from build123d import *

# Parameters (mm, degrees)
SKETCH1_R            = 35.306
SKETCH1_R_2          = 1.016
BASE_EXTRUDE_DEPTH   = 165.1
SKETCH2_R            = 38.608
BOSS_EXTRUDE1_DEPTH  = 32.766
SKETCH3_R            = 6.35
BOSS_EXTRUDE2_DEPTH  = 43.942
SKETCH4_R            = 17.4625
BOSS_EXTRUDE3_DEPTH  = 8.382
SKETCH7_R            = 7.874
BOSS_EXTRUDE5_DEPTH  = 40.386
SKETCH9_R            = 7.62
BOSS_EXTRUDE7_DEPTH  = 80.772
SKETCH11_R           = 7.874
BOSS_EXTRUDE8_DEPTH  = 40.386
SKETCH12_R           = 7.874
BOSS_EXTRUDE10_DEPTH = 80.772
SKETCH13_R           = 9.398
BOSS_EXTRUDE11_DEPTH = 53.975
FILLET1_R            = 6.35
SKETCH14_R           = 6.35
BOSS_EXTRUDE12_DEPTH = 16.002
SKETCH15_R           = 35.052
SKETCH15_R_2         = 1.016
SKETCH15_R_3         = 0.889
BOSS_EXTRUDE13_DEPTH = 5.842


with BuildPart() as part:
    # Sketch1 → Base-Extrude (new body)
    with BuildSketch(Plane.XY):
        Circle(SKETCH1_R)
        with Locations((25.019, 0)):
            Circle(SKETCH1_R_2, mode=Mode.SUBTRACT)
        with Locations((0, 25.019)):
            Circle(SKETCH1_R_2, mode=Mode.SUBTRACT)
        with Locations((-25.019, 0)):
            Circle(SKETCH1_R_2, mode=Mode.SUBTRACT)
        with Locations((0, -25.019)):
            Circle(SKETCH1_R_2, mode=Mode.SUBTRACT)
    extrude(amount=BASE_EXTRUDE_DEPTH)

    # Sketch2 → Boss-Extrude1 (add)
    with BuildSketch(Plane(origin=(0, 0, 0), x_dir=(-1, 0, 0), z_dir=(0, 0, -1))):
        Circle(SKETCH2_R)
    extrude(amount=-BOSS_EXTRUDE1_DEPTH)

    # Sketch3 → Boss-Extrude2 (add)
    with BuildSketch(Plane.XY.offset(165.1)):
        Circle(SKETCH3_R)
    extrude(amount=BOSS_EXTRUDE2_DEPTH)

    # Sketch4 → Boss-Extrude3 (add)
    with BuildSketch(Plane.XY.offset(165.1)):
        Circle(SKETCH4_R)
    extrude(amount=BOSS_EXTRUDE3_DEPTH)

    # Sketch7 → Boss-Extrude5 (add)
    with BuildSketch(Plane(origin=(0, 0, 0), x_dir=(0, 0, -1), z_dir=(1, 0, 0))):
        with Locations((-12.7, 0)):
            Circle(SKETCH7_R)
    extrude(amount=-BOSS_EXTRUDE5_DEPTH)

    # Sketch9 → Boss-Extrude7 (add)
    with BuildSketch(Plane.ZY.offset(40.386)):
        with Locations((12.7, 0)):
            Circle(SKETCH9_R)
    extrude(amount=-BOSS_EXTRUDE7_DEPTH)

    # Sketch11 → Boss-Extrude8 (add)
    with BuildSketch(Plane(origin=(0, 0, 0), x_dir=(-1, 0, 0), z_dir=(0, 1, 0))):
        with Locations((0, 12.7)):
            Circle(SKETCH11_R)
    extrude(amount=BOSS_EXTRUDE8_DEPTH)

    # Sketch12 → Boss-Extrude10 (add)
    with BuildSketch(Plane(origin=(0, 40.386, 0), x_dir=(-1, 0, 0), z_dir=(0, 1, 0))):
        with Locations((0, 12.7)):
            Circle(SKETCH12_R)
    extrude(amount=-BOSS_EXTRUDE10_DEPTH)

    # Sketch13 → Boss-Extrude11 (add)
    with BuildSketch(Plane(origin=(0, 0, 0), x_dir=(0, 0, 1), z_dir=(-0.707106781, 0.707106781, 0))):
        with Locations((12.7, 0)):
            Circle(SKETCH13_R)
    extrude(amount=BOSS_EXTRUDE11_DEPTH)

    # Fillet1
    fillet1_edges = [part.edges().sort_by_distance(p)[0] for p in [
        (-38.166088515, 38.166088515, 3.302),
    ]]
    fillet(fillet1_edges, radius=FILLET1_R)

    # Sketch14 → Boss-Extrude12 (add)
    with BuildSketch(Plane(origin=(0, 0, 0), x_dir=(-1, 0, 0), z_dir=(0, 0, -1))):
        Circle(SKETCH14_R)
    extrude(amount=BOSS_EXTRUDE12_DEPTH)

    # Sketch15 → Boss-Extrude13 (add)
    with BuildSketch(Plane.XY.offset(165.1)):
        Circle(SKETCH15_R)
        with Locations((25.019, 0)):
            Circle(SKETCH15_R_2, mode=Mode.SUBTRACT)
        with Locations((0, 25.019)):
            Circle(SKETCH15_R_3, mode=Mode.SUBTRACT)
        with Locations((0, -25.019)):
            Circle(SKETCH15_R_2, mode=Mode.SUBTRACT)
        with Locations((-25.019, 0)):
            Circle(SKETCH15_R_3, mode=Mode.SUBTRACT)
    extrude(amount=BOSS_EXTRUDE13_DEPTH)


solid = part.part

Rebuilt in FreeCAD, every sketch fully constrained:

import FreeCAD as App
import Part
import Sketcher

V = App.Vector
Q = App.Units.Quantity


def edges_at(feature, points):
    """Names of the edges that pass closest to the given points."""
    edges = feature.Shape.Edges
    near = lambda p: min(range(len(edges)), key=lambda i: edges[i].distToShape(Part.Vertex(*p))[0])
    return sorted({f"Edge{near(p) + 1}" for p in points})

doc = App.newDocument("Part")
body = doc.addObject("PartDesign::Body", "Body")

sketch1 = body.newObject("Sketcher::SketchObject", "Sketch")
sketch1.AttachmentSupport = (doc.getObject("XY_Plane"), [""])
sketch1.MapMode = "FlatFace"
sketch1.addGeometry(Part.Circle(V(0, 0, 0), V(0, 0, 1), 35.3), False)
sketch1.addGeometry(Part.Circle(V(0, -25, 0), V(0, 0, 1), 1), False)
sketch1.addGeometry(Part.Circle(V(-25, 0, 0), V(0, 0, 1), 1), False)
sketch1.addGeometry(Part.Circle(V(25, 0, 0), V(0, 0, 1), 1), False)
sketch1.addGeometry(Part.Circle(V(0, 25, 0), V(0, 0, 1), 1), False)
sketch1.addConstraint(Sketcher.Constraint("Coincident", 0, 3, -1, 1))
sketch1.addConstraint(Sketcher.Constraint("Equal", 1, 2))
sketch1.addConstraint(Sketcher.Constraint("Equal", 2, 3))
sketch1.addConstraint(Sketcher.Constraint("Equal", 3, 4))
sketch1.addConstraint(Sketcher.Constraint("Symmetric", 2, 3, 3, 3, -1, 1))
sketch1.addConstraint(Sketcher.Constraint("Symmetric", 1, 3, 4, 3, -1, 1))
sketch1.addConstraint(Sketcher.Constraint("PointOnObject", 1, 3, -2))
sketch1.addConstraint(Sketcher.Constraint("PointOnObject", 2, 3, -1))
sketch1.addConstraint(Sketcher.Constraint("Diameter", 0, Q("2.78 in")))
sketch1.addConstraint(Sketcher.Constraint("Diameter", 1, Q("0.08 in")))
sketch1.addConstraint(Sketcher.Constraint("DistanceX", 2, 3, 3, 3, Q("1.97 in")))
sketch1.addConstraint(Sketcher.Constraint("DistanceY", 1, 3, 4, 3, Q("1.97 in")))
pad1 = body.newObject("PartDesign::Pad", "Pad")
pad1.Profile = sketch1
pad1.Length = Q("6.5 in")

sketch2 = body.newObject("Sketcher::SketchObject", "Sketch001")
sketch2.AttachmentSupport = (doc.getObject("XY_Plane"), [""])
sketch2.MapMode = "FlatFace"
sketch2.addGeometry(Part.Circle(V(0, 0, 0), V(0, 0, 1), 39), False)
sketch2.addConstraint(Sketcher.Constraint("Coincident", 0, 3, -1, 1))
sketch2.addConstraint(Sketcher.Constraint("Diameter", 0, Q("3.04 in")))
pad2 = body.newObject("PartDesign::Pad", "Pad001")
pad2.Profile = sketch2
pad2.Length = Q("1.29 in")

sketch3 = body.newObject("Sketcher::SketchObject", "Sketch002")
sketch3.AttachmentSupport = (doc.getObject("XY_Plane"), [""])
sketch3.MapMode = "FlatFace"
sketch3.AttachmentOffset = App.Placement(V(0, 0, 6.5 * 25.4), App.Rotation())
sketch3.addGeometry(Part.Circle(V(0, 0, 0), V(0, 0, 1), 6), False)
sketch3.addConstraint(Sketcher.Constraint("Coincident", 0, 3, -1, 1))
sketch3.addConstraint(Sketcher.Constraint("Diameter", 0, Q("0.5 in")))
pad3 = body.newObject("PartDesign::Pad", "Pad002")
pad3.Profile = sketch3
pad3.Length = Q("1.73 in")

sketch4 = body.newObject("Sketcher::SketchObject", "Sketch003")
sketch4.AttachmentSupport = (doc.getObject("XY_Plane"), [""])
sketch4.MapMode = "FlatFace"
sketch4.AttachmentOffset = App.Placement(V(0, 0, 6.5 * 25.4), App.Rotation())
sketch4.addGeometry(Part.Circle(V(0, 0, 0), V(0, 0, 1), 17), False)
sketch4.addConstraint(Sketcher.Constraint("Coincident", 0, 3, -1, 1))
sketch4.addConstraint(Sketcher.Constraint("Diameter", 0, Q("1.375 in")))
pad4 = body.newObject("PartDesign::Pad", "Pad003")
pad4.Profile = sketch4
pad4.Length = Q("0.33 in")

sketch5 = body.newObject("Sketcher::SketchObject", "Sketch004")
sketch5.AttachmentSupport = (doc.getObject("YZ_Plane"), [""])
sketch5.MapMode = "FlatFace"
sketch5.addGeometry(Part.Circle(V(0, 13, 0), V(0, 0, 1), 8), False)
sketch5.addConstraint(Sketcher.Constraint("PointOnObject", 0, 3, -2))
sketch5.addConstraint(Sketcher.Constraint("Diameter", 0, Q("0.62 in")))
sketch5.addConstraint(Sketcher.Constraint("DistanceY", -1, 1, 0, 3, Q("0.5 in")))
pad5 = body.newObject("PartDesign::Pad", "Pad004")
pad5.Profile = sketch5
pad5.Length = Q("1.59 in")
pad5.Reversed = True

sketch6 = body.newObject("Sketcher::SketchObject", "Sketch005")
sketch6.AttachmentSupport = (doc.getObject("YZ_Plane"), [""])
sketch6.MapMode = "FlatFace"
sketch6.AttachmentOffset = App.Placement(V(0, 0, -1.59 * 25.4), App.Rotation())
sketch6.addGeometry(Part.Circle(V(0, 13, 0), V(0, 0, 1), 8), False)
sketch6.addConstraint(Sketcher.Constraint("PointOnObject", 0, 3, -2))
sketch6.addConstraint(Sketcher.Constraint("Diameter", 0, Q("0.6 in")))
sketch6.addConstraint(Sketcher.Constraint("DistanceY", -1, 1, 0, 3, Q("0.5 in")))
pad6 = body.newObject("PartDesign::Pad", "Pad005")
pad6.Profile = sketch6
pad6.Length = Q("3.18 in")

sketch7 = body.newObject("Sketcher::SketchObject", "Sketch006")
sketch7.AttachmentSupport = (doc.getObject("XZ_Plane"), [""])
sketch7.MapMode = "FlatFace"
sketch7.addGeometry(Part.Circle(V(0, 13, 0), V(0, 0, 1), 8), False)
sketch7.addConstraint(Sketcher.Constraint("PointOnObject", 0, 3, -2))
sketch7.addConstraint(Sketcher.Constraint("Diameter", 0, Q("0.62 in")))
sketch7.addConstraint(Sketcher.Constraint("DistanceY", -1, 1, 0, 3, Q("0.5 in")))
pad7 = body.newObject("PartDesign::Pad", "Pad006")
pad7.Profile = sketch7
pad7.Length = Q("1.59 in")
pad7.Reversed = True

sketch8 = body.newObject("Sketcher::SketchObject", "Sketch007")
sketch8.AttachmentSupport = (doc.getObject("XZ_Plane"), [""])
sketch8.MapMode = "FlatFace"
sketch8.AttachmentOffset = App.Placement(V(0, 0, -1.59 * 25.4), App.Rotation())
sketch8.addGeometry(Part.Circle(V(0, 13, 0), V(0, 0, 1), 8), False)
sketch8.addConstraint(Sketcher.Constraint("PointOnObject", 0, 3, -2))
sketch8.addConstraint(Sketcher.Constraint("Diameter", 0, Q("0.62 in")))
sketch8.addConstraint(Sketcher.Constraint("DistanceY", -1, 1, 0, 3, Q("0.5 in")))
pad8 = body.newObject("PartDesign::Pad", "Pad007")
pad8.Profile = sketch8
pad8.Length = Q("3.18 in")

sketch9 = body.newObject("Sketcher::SketchObject", "Sketch008")
sketch9.Placement = App.Placement(V(0, 0, 0), App.Rotation(V(0, 0, 1), V(0.707106781, 0.707106781, 0), V(-0.707106781, 0.707106781, 0), "ZXY"))
sketch9.addGeometry(Part.Circle(V(13, 0, 0), V(0, 0, 1), 9), False)
sketch9.addConstraint(Sketcher.Constraint("PointOnObject", 0, 3, -1))
sketch9.addConstraint(Sketcher.Constraint("Diameter", 0, Q("0.74 in")))
sketch9.addConstraint(Sketcher.Constraint("DistanceX", -1, 1, 0, 3, Q("0.5 in")))
pad9 = body.newObject("PartDesign::Pad", "Pad008")
pad9.Profile = sketch9
pad9.Length = Q("2.125 in")
doc.recompute()

fillet = body.newObject("PartDesign::Fillet", "Fillet")
fillet.Base = (pad9, edges_at(pad9, [(-38.166, 38.166, 3.302)]))
fillet.Radius = Q("0.25 in")

sketch10 = body.newObject("Sketcher::SketchObject", "Sketch009")
sketch10.AttachmentSupport = (doc.getObject("XY_Plane"), [""])
sketch10.MapMode = "FlatFace"
sketch10.addGeometry(Part.Circle(V(0, 0, 0), V(0, 0, 1), 6), False)
sketch10.addConstraint(Sketcher.Constraint("Coincident", 0, 3, -1, 1))
sketch10.addConstraint(Sketcher.Constraint("Diameter", 0, Q("0.5 in")))
pad10 = body.newObject("PartDesign::Pad", "Pad009")
pad10.Profile = sketch10
pad10.Length = Q("0.63 in")
pad10.Reversed = True

sketch11 = body.newObject("Sketcher::SketchObject", "Sketch010")
sketch11.AttachmentSupport = (doc.getObject("XY_Plane"), [""])
sketch11.MapMode = "FlatFace"
sketch11.AttachmentOffset = App.Placement(V(0, 0, 6.5 * 25.4), App.Rotation())
sketch11.addGeometry(Part.Circle(V(0, 0, 0), V(0, 0, 1), 35.1), False)
sketch11.addGeometry(Part.Circle(V(0, -25, 0), V(0, 0, 1), 1), False)
sketch11.addGeometry(Part.Circle(V(-25, 0, 0), V(0, 0, 1), 0.9), False)
sketch11.addGeometry(Part.Circle(V(0, 25, 0), V(0, 0, 1), 0.9), False)
sketch11.addGeometry(Part.Circle(V(25, 0, 0), V(0, 0, 1), 1), False)
sketch11.addConstraint(Sketcher.Constraint("Coincident", 0, 3, -1, 1))
sketch11.addConstraint(Sketcher.Constraint("Equal", 2, 3))
sketch11.addConstraint(Sketcher.Constraint("Equal", 1, 4))
sketch11.addConstraint(Sketcher.Constraint("Symmetric", 1, 3, 3, 3, -1, 1))
sketch11.addConstraint(Sketcher.Constraint("Symmetric", 2, 3, 4, 3, -1, 1))
sketch11.addConstraint(Sketcher.Constraint("PointOnObject", 1, 3, -2))
sketch11.addConstraint(Sketcher.Constraint("PointOnObject", 2, 3, -1))
sketch11.addConstraint(Sketcher.Constraint("Diameter", 0, Q("2.76 in")))
sketch11.addConstraint(Sketcher.Constraint("Diameter", 1, Q("0.08 in")))
sketch11.addConstraint(Sketcher.Constraint("Diameter", 2, Q("0.07 in")))
sketch11.addConstraint(Sketcher.Constraint("DistanceY", 1, 3, 3, 3, Q("1.97 in")))
sketch11.addConstraint(Sketcher.Constraint("DistanceX", 2, 3, 4, 3, Q("1.97 in")))
pad11 = body.newObject("PartDesign::Pad", "Pad010")
pad11.Profile = sketch11
pad11.Length = Q("0.23 in")

doc.recompute()
